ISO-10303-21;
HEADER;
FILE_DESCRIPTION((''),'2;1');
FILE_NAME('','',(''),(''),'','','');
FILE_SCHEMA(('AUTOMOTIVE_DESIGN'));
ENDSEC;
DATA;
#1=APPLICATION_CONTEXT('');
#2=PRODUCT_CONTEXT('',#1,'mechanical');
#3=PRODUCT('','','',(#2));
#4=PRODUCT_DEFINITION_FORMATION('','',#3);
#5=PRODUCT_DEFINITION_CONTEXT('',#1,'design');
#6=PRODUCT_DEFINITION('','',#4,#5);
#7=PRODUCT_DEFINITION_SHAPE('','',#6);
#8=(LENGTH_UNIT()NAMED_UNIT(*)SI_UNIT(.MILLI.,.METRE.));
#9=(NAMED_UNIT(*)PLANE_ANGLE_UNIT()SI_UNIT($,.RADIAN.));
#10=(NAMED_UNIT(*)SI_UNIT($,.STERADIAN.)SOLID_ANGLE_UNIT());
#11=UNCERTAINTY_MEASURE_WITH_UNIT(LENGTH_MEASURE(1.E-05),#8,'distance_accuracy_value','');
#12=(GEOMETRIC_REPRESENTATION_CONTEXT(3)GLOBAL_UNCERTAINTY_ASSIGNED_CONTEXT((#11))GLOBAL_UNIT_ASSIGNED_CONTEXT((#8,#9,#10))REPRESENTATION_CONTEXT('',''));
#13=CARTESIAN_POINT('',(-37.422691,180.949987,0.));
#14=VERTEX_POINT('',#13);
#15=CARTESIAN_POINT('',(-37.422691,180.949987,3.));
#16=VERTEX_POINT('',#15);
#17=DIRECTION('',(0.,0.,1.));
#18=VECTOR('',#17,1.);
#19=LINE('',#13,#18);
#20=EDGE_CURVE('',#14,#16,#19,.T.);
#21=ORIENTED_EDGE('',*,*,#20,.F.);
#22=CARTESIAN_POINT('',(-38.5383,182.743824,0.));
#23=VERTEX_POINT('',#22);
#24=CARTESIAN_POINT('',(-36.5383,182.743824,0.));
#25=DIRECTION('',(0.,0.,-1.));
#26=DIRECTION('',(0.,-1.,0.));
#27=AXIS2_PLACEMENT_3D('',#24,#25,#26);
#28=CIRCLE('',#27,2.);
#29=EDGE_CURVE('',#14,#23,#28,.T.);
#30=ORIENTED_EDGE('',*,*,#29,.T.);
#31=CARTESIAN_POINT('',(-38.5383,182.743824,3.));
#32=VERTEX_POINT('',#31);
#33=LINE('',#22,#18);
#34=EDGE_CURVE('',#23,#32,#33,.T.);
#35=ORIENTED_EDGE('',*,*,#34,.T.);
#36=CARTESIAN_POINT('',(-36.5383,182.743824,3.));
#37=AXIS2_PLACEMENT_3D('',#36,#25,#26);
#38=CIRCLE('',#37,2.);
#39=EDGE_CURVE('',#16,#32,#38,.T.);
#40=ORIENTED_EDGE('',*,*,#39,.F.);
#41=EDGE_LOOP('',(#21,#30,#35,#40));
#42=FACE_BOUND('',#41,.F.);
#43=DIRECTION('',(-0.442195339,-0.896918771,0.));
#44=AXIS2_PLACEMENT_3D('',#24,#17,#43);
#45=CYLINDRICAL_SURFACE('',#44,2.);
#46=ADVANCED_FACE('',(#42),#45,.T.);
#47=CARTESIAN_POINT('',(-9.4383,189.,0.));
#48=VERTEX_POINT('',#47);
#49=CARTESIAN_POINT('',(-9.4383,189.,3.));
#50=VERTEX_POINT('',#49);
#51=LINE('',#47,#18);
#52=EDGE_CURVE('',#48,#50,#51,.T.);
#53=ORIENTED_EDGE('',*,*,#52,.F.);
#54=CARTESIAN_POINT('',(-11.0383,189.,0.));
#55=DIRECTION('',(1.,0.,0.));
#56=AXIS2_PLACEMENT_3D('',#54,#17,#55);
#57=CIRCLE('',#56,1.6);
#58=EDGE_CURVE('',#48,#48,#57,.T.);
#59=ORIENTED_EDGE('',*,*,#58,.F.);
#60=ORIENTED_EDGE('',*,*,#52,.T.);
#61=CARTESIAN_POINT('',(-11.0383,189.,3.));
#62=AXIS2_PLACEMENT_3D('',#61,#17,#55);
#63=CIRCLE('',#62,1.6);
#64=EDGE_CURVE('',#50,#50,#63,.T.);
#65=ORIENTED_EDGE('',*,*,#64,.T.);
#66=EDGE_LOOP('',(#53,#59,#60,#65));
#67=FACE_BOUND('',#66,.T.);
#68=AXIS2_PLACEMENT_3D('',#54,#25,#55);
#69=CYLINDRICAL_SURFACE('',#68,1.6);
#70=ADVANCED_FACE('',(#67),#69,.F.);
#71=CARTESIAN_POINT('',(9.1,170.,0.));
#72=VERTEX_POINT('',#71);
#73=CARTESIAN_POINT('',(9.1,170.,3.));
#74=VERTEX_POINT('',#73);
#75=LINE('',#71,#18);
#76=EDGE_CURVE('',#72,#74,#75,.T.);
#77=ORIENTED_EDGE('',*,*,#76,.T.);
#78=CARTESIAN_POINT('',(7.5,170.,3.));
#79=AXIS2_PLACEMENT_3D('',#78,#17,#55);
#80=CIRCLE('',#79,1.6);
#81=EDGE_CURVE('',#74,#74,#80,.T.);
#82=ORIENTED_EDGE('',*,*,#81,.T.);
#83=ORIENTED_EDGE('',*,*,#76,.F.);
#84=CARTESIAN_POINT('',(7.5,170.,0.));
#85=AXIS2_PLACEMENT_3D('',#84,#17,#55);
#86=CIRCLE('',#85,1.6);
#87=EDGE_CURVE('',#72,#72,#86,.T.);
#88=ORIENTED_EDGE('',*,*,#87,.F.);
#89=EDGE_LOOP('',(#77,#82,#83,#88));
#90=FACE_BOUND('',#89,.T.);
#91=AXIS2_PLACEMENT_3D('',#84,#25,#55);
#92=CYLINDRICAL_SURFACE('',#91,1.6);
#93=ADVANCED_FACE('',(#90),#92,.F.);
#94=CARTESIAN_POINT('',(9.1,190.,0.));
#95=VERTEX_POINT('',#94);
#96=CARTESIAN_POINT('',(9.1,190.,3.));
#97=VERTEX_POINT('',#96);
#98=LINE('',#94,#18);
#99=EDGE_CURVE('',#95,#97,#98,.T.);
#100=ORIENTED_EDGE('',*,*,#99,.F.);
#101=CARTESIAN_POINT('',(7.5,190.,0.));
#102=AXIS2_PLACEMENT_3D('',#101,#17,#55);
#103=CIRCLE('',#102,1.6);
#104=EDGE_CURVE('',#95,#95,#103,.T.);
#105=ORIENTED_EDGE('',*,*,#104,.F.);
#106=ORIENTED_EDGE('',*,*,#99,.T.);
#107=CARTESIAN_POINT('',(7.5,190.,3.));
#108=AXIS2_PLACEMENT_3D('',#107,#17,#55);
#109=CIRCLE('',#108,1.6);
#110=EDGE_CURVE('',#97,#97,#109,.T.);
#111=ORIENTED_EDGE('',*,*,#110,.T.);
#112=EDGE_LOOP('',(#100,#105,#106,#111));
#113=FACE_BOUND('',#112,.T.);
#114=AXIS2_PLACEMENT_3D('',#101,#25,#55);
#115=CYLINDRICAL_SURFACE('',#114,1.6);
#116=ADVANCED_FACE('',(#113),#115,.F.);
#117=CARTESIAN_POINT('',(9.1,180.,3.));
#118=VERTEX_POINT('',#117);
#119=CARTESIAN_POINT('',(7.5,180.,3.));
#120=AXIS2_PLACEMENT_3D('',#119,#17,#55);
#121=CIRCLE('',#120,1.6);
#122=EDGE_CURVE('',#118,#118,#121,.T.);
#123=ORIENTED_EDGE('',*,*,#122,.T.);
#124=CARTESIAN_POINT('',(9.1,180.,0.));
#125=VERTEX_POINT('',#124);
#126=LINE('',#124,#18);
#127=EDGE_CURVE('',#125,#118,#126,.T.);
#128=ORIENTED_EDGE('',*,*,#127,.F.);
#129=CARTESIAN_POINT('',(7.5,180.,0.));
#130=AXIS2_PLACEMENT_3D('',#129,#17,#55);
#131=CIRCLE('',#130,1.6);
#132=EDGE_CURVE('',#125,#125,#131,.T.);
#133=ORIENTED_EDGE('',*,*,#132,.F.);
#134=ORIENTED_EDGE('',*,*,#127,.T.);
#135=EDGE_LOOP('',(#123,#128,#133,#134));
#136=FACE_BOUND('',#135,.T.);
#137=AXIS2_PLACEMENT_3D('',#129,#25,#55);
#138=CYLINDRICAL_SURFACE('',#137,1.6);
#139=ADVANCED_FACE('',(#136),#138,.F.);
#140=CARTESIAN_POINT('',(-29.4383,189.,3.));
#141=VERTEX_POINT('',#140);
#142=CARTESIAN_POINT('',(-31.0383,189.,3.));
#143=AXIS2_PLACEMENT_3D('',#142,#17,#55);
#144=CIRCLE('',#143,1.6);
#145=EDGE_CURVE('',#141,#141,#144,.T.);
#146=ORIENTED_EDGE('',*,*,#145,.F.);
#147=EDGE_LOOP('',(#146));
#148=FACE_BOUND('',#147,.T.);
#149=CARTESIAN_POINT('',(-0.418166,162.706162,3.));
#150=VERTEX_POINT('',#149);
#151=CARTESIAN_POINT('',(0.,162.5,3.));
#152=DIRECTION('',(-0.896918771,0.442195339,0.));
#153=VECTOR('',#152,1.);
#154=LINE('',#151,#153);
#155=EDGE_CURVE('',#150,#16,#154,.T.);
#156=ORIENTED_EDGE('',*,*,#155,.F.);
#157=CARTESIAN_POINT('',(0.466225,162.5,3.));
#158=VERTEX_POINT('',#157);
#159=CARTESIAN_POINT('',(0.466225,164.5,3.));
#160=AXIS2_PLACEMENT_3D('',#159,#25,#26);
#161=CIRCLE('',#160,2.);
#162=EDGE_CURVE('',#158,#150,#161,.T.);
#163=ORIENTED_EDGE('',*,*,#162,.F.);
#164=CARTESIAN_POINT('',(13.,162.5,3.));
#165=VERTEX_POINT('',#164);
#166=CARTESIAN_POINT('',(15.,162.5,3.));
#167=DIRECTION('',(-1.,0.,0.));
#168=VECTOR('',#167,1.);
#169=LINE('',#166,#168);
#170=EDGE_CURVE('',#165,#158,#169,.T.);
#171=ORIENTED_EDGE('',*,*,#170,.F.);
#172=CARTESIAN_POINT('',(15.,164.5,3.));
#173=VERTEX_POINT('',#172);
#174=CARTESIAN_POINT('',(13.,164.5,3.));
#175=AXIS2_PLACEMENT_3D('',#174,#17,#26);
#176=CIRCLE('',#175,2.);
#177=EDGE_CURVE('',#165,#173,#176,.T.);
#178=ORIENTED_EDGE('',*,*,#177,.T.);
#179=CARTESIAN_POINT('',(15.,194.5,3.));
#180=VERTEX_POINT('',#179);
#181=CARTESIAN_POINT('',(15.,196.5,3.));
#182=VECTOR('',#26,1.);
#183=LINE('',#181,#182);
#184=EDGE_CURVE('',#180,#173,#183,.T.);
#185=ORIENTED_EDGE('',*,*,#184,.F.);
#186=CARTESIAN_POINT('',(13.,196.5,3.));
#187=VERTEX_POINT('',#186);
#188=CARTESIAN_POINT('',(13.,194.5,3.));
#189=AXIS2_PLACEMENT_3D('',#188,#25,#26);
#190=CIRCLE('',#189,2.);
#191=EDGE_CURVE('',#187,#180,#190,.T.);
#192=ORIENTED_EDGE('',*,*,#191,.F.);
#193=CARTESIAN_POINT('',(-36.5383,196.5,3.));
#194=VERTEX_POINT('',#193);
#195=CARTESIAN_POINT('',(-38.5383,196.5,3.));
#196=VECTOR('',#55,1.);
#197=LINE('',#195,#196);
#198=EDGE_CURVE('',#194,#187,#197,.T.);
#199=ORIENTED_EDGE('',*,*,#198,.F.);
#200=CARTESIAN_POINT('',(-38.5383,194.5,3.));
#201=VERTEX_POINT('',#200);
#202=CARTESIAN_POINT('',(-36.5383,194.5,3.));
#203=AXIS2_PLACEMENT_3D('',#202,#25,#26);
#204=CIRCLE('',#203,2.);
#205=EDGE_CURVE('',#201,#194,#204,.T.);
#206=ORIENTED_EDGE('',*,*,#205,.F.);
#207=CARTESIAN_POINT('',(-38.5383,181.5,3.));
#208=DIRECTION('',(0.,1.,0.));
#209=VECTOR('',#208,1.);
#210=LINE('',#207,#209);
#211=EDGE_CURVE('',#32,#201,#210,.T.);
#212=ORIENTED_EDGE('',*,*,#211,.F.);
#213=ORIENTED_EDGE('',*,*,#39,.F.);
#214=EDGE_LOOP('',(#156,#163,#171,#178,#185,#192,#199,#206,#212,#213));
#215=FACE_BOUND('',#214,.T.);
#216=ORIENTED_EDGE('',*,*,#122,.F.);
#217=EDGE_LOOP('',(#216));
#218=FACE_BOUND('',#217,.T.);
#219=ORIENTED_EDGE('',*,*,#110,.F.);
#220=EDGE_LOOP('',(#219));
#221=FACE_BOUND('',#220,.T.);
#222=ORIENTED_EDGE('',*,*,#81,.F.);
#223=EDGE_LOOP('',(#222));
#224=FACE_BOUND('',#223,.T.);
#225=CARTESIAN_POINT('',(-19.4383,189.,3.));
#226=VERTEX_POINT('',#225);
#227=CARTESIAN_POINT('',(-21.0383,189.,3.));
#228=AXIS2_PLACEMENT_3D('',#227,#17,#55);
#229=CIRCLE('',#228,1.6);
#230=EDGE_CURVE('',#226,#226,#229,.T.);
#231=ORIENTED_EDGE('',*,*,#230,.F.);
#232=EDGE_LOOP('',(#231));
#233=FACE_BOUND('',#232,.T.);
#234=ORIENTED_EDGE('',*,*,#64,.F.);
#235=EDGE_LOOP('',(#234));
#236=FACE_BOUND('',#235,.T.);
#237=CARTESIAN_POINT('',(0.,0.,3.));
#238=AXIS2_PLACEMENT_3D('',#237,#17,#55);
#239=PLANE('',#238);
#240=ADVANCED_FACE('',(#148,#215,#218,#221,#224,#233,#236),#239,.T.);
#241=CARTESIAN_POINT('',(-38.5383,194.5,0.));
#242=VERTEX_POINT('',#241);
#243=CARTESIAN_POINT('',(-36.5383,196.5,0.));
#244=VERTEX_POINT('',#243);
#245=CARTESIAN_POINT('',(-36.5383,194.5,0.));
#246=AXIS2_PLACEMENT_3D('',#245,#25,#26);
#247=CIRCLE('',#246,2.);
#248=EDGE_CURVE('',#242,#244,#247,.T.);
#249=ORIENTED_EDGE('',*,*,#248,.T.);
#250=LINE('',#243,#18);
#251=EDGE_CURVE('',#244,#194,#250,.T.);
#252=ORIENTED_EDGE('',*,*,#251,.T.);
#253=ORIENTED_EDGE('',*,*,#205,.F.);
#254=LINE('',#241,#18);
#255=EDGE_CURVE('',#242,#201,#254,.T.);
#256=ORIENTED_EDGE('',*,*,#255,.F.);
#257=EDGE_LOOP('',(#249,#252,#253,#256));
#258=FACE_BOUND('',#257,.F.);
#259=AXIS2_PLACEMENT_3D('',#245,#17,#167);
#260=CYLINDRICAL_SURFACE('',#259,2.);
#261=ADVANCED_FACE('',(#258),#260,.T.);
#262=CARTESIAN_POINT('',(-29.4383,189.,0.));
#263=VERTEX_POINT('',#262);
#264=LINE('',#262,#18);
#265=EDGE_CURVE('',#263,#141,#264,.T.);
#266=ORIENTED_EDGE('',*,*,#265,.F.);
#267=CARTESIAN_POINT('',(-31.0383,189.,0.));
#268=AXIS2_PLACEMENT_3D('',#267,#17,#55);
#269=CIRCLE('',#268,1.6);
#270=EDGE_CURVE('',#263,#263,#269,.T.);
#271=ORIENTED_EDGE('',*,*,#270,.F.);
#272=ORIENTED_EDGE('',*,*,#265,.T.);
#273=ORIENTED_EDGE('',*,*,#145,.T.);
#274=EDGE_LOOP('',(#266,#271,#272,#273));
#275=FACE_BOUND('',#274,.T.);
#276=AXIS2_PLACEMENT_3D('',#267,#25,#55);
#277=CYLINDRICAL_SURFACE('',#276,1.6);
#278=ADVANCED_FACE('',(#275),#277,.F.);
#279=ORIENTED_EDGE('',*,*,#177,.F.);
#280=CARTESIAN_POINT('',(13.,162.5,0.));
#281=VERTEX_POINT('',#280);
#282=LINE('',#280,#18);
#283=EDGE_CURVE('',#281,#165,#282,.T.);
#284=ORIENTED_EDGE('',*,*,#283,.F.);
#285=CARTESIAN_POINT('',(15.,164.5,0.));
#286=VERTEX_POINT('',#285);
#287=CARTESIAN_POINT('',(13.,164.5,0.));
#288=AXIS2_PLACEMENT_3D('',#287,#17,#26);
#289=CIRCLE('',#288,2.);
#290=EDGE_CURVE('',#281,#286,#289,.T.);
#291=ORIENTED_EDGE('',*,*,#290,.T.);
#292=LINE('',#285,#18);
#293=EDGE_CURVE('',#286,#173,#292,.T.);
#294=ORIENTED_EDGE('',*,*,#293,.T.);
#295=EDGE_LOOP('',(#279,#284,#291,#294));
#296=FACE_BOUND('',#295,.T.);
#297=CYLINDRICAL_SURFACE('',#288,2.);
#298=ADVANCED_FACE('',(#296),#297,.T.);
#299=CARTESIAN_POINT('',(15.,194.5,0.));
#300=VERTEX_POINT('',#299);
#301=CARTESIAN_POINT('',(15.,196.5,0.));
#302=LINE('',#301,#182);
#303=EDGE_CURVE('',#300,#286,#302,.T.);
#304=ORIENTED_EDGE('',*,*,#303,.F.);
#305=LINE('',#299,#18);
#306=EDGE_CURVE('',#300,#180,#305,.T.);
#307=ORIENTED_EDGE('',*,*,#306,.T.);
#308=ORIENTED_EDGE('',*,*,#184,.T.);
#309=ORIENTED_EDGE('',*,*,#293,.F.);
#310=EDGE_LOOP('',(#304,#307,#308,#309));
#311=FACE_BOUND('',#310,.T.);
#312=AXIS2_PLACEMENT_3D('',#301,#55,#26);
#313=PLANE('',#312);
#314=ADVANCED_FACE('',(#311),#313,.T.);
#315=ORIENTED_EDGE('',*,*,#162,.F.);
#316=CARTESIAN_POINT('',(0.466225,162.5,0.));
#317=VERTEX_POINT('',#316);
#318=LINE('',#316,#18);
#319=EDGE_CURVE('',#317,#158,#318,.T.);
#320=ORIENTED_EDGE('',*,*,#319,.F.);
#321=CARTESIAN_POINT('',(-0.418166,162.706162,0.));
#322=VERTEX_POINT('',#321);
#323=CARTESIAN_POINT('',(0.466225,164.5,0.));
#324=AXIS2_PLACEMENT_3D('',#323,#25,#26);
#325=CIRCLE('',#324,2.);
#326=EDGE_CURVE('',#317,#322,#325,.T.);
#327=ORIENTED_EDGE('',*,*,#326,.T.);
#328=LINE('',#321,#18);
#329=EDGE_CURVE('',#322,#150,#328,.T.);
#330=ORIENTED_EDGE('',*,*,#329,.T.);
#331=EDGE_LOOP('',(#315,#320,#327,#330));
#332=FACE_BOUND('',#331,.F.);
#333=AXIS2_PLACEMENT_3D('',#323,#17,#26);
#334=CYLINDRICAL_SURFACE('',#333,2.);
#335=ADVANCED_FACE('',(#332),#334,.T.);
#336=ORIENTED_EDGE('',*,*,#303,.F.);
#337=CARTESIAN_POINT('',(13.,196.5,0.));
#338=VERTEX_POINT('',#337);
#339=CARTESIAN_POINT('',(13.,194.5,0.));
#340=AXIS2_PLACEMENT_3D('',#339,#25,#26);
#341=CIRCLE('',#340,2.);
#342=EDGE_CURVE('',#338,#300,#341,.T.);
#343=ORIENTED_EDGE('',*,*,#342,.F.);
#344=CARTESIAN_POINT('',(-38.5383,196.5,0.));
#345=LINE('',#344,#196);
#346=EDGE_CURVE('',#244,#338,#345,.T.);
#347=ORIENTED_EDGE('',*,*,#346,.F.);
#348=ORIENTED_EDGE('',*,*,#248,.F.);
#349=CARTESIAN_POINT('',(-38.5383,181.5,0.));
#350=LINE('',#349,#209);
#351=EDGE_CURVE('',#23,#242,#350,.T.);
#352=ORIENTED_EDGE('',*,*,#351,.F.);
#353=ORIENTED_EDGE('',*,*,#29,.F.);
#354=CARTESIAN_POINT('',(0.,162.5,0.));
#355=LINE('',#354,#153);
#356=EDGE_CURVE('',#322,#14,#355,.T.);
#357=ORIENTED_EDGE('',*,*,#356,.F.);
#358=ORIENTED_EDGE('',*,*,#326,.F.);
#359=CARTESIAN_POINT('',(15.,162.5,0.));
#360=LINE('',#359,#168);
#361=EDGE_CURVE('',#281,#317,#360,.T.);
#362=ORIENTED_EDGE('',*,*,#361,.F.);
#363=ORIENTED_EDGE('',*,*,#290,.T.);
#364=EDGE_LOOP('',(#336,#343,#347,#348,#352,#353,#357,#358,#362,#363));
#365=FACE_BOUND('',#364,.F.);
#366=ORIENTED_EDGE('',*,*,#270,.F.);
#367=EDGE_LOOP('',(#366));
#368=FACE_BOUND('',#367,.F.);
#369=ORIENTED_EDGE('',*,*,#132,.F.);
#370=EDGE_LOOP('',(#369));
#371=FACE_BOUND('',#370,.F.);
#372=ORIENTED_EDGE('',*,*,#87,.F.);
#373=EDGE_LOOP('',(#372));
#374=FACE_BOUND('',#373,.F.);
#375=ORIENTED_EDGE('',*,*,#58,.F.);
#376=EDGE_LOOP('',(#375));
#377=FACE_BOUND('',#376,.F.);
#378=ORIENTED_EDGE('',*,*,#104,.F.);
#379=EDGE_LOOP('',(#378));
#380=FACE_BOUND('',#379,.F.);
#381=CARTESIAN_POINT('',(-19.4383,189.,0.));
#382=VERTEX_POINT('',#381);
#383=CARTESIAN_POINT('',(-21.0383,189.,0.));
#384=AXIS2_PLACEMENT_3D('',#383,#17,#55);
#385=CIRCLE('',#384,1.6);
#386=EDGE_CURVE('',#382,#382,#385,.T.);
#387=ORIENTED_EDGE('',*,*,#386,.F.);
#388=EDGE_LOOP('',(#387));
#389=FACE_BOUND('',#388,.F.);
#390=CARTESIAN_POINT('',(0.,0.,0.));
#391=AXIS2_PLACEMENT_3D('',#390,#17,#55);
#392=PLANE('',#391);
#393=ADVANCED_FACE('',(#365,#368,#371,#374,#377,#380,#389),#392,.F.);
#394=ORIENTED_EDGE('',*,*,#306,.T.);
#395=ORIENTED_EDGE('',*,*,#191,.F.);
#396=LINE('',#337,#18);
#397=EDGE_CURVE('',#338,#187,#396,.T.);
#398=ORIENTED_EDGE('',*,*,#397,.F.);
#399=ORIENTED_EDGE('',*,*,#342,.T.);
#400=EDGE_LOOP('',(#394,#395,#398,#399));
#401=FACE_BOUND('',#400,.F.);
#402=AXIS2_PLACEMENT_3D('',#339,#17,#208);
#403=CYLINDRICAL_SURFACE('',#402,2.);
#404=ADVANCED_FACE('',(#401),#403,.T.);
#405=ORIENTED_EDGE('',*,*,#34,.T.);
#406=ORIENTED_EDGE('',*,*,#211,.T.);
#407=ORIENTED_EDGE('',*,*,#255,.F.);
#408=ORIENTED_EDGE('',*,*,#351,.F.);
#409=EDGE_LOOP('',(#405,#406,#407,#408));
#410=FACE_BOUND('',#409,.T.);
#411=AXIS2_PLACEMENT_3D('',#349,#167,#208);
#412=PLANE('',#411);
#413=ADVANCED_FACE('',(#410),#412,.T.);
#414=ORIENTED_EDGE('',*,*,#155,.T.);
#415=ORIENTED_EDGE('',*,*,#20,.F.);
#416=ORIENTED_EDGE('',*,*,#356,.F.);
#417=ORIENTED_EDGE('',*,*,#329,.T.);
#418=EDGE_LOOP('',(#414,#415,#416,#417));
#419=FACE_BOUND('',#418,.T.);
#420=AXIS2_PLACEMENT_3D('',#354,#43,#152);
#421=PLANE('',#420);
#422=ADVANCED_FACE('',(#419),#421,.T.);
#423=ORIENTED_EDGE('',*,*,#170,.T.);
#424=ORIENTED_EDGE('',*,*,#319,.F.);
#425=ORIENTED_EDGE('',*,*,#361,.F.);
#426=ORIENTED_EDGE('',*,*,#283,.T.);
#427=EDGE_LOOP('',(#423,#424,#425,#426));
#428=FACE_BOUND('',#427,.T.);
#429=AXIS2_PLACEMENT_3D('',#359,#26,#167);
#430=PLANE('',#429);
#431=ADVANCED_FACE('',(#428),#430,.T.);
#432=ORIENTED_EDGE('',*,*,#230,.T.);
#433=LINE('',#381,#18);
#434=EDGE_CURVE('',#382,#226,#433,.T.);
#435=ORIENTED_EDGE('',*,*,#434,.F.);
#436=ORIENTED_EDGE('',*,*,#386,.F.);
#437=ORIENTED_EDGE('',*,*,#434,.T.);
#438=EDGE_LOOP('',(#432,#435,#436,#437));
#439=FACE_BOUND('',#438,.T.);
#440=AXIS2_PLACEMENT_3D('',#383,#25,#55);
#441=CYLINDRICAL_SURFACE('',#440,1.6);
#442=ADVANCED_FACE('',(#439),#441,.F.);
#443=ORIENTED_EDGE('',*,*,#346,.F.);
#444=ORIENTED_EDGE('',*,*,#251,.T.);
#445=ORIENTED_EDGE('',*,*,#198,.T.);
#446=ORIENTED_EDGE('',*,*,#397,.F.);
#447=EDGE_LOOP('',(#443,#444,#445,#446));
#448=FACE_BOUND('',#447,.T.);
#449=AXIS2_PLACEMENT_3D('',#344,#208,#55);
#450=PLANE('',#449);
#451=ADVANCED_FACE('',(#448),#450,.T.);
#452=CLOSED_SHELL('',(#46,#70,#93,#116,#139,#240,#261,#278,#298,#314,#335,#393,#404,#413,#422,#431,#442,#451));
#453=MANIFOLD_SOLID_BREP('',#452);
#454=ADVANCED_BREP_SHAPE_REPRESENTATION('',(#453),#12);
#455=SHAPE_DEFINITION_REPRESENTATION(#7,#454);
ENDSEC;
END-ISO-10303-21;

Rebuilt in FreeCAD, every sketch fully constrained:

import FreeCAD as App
import Part
import Sketcher
from FreeCAD import Vector


def edges_at(feature, points):
    """Names of the edges that pass closest to the given points."""
    edges = feature.Shape.Edges
    near = lambda p: min(range(len(edges)), key=lambda i: edges[i].distToShape(Part.Vertex(*p))[0])
    return sorted({f"Edge{near(p) + 1}" for p in points})

doc = App.newDocument("Part")
params = doc.addObject("Spreadsheet::Sheet", "Params")
for row, (alias, value) in enumerate([
    ("sketch1_diameter", "3.2 mm"),
    ("sketch1_height", "34 mm"),
    ("pad1_length", "3 mm"),
    ("fillet_radius", "2 mm"),
], start=1):
    params.set(f"A{row}", alias)
    params.set(f"B{row}", "=" + value)
    params.setAlias(f"B{row}", alias)

body = doc.addObject("PartDesign::Body", "Body")

# Sketch on XY plane
sketch1 = doc.addObject("Sketcher::SketchObject", "Sketch")
body.addObject(sketch1)
sketch1.AttachmentSupport = (doc.XY_Plane, [""])
sketch1.MapMode = "FlatFace"
sketch1.addGeometry(Part.LineSegment(Vector(0, 162.5, 0), Vector(15, 162.5, 0)), False)
sketch1.addGeometry(Part.LineSegment(Vector(15, 162.5, 0), Vector(15, 196.5, 0)), False)
sketch1.addGeometry(Part.LineSegment(Vector(15, 196.5, 0), Vector(-38.5383, 196.5, 0)), False)
sketch1.addGeometry(Part.LineSegment(Vector(-38.5383, 196.5, 0), Vector(-38.5383, 181.5, 0)), False)
sketch1.addGeometry(Part.LineSegment(Vector(-38.5383, 181.5, 0), Vector(0, 162.5, 0)), False)
sketch1.addGeometry(Part.Circle(Vector(7.5, 170, 0), Vector(0, 0, 1), 1.6), False)
sketch1.addGeometry(Part.Circle(Vector(-31.0383, 189, 0), Vector(0, 0, 1), 1.6), False)
sketch1.addGeometry(Part.Circle(Vector(-21.0383, 189, 0), Vector(0, 0, 1), 1.6), False)
sketch1.addGeometry(Part.Circle(Vector(7.5, 180, 0), Vector(0, 0, 1), 1.6), False)
sketch1.addGeometry(Part.Circle(Vector(-11.0383, 189, 0), Vector(0, 0, 1), 1.6), False)
sketch1.addGeometry(Part.Circle(Vector(7.5, 190, 0), Vector(0, 0, 1), 1.6), False)
sketch1.addConstraint(Sketcher.Constraint("Coincident", 0, 2, 1, 1))
sketch1.addConstraint(Sketcher.Constraint("Coincident", 1, 2, 2, 1))
sketch1.addConstraint(Sketcher.Constraint("Coincident", 2, 2, 3, 1))
sketch1.addConstraint(Sketcher.Constraint("Coincident", 3, 2, 4, 1))
sketch1.addConstraint(Sketcher.Constraint("Coincident", 4, 2, 0, 1))
sketch1.addConstraint(Sketcher.Constraint("Horizontal", 0))
sketch1.addConstraint(Sketcher.Constraint("Vertical", 1))
sketch1.addConstraint(Sketcher.Constraint("Horizontal", 2))
sketch1.addConstraint(Sketcher.Constraint("Vertical", 3))
sketch1.addConstraint(Sketcher.Constraint("Equal", 5, 6))
sketch1.addConstraint(Sketcher.Constraint("Equal", 6, 7))
sketch1.addConstraint(Sketcher.Constraint("Equal", 7, 8))
sketch1.addConstraint(Sketcher.Constraint("Equal", 8, 9))
sketch1.addConstraint(Sketcher.Constraint("Equal", 9, 10))
sketch1.addConstraint(Sketcher.Constraint("PointOnObject", 4, 2, -2))
sketch1.addConstraint(Sketcher.Constraint("Horizontal", 6, 3, 7, 3))
sketch1.addConstraint(Sketcher.Constraint("Horizontal", 7, 3, 9, 3))
sketch1.addConstraint(Sketcher.Constraint("Vertical", 5, 3, 8, 3))
sketch1.addConstraint(Sketcher.Constraint("Vertical", 8, 3, 10, 3))
sketch1.addConstraint(Sketcher.Constraint("Equal", 0, 3))
sketch1.addConstraint(Sketcher.Constraint("Diameter", 5, 3.2))
sketch1.addConstraint(Sketcher.Constraint("DistanceX", -1, 1, 5, 3, 7.5))
sketch1.addConstraint(Sketcher.Constraint("DistanceX", 5, 3, 0, 2, 7.5))
sketch1.addConstraint(Sketcher.Constraint("DistanceY", 0, 2, 5, 3, 7.5))
sketch1.addConstraint(Sketcher.Constraint("DistanceY", 9, 3, 1, 2, 7.5))
sketch1.addConstraint(Sketcher.Constraint("DistanceX", 2, 2, 6, 3, 7.5))
sketch1.addConstraint(Sketcher.Constraint("DistanceY", 1, 1, 1, 2, 34.0))
sketch1.addConstraint(Sketcher.Constraint("DistanceY", -1, 1, 5, 3, 170.0))
sketch1.addConstraint(Sketcher.Constraint("DistanceY", -1, 1, 8, 3, 180.0))
sketch1.addConstraint(Sketcher.Constraint("DistanceY", -1, 1, 10, 3, 190.0))
sketch1.addConstraint(Sketcher.Constraint("DistanceX", 6, 3, 7, 3, 10.0))
sketch1.addConstraint(Sketcher.Constraint("DistanceX", 7, 3, 9, 3, 10.0))
sketch1.addConstraint(Sketcher.Constraint("DistanceX", 2, 2, 2, 1, 53.5383))
sketch1.setExpression("Constraints[20]", "Params.sketch1_diameter")
sketch1.setExpression("Constraints[26]", "Params.sketch1_height")
pad1 = doc.addObject("PartDesign::Pad", "Pad")
body.addObject(pad1)
pad1.Profile = sketch1
pad1.setExpression("Length", "Params.pad1_length")
doc.recompute()

fillet = doc.addObject("PartDesign::Fillet", "Fillet")
body.addObject(fillet)
fillet.Base = (pad1, edges_at(pad1, [
    (15, 162.5, 1.5),
    (15, 196.5, 1.5),
    (-38.538, 196.5, 1.5),
    (-38.538, 181.5, 1.5),
    (0, 162.5, 1.5),
]))
fillet.setExpression("Radius", "Params.fillet_radius")

doc.recompute()
